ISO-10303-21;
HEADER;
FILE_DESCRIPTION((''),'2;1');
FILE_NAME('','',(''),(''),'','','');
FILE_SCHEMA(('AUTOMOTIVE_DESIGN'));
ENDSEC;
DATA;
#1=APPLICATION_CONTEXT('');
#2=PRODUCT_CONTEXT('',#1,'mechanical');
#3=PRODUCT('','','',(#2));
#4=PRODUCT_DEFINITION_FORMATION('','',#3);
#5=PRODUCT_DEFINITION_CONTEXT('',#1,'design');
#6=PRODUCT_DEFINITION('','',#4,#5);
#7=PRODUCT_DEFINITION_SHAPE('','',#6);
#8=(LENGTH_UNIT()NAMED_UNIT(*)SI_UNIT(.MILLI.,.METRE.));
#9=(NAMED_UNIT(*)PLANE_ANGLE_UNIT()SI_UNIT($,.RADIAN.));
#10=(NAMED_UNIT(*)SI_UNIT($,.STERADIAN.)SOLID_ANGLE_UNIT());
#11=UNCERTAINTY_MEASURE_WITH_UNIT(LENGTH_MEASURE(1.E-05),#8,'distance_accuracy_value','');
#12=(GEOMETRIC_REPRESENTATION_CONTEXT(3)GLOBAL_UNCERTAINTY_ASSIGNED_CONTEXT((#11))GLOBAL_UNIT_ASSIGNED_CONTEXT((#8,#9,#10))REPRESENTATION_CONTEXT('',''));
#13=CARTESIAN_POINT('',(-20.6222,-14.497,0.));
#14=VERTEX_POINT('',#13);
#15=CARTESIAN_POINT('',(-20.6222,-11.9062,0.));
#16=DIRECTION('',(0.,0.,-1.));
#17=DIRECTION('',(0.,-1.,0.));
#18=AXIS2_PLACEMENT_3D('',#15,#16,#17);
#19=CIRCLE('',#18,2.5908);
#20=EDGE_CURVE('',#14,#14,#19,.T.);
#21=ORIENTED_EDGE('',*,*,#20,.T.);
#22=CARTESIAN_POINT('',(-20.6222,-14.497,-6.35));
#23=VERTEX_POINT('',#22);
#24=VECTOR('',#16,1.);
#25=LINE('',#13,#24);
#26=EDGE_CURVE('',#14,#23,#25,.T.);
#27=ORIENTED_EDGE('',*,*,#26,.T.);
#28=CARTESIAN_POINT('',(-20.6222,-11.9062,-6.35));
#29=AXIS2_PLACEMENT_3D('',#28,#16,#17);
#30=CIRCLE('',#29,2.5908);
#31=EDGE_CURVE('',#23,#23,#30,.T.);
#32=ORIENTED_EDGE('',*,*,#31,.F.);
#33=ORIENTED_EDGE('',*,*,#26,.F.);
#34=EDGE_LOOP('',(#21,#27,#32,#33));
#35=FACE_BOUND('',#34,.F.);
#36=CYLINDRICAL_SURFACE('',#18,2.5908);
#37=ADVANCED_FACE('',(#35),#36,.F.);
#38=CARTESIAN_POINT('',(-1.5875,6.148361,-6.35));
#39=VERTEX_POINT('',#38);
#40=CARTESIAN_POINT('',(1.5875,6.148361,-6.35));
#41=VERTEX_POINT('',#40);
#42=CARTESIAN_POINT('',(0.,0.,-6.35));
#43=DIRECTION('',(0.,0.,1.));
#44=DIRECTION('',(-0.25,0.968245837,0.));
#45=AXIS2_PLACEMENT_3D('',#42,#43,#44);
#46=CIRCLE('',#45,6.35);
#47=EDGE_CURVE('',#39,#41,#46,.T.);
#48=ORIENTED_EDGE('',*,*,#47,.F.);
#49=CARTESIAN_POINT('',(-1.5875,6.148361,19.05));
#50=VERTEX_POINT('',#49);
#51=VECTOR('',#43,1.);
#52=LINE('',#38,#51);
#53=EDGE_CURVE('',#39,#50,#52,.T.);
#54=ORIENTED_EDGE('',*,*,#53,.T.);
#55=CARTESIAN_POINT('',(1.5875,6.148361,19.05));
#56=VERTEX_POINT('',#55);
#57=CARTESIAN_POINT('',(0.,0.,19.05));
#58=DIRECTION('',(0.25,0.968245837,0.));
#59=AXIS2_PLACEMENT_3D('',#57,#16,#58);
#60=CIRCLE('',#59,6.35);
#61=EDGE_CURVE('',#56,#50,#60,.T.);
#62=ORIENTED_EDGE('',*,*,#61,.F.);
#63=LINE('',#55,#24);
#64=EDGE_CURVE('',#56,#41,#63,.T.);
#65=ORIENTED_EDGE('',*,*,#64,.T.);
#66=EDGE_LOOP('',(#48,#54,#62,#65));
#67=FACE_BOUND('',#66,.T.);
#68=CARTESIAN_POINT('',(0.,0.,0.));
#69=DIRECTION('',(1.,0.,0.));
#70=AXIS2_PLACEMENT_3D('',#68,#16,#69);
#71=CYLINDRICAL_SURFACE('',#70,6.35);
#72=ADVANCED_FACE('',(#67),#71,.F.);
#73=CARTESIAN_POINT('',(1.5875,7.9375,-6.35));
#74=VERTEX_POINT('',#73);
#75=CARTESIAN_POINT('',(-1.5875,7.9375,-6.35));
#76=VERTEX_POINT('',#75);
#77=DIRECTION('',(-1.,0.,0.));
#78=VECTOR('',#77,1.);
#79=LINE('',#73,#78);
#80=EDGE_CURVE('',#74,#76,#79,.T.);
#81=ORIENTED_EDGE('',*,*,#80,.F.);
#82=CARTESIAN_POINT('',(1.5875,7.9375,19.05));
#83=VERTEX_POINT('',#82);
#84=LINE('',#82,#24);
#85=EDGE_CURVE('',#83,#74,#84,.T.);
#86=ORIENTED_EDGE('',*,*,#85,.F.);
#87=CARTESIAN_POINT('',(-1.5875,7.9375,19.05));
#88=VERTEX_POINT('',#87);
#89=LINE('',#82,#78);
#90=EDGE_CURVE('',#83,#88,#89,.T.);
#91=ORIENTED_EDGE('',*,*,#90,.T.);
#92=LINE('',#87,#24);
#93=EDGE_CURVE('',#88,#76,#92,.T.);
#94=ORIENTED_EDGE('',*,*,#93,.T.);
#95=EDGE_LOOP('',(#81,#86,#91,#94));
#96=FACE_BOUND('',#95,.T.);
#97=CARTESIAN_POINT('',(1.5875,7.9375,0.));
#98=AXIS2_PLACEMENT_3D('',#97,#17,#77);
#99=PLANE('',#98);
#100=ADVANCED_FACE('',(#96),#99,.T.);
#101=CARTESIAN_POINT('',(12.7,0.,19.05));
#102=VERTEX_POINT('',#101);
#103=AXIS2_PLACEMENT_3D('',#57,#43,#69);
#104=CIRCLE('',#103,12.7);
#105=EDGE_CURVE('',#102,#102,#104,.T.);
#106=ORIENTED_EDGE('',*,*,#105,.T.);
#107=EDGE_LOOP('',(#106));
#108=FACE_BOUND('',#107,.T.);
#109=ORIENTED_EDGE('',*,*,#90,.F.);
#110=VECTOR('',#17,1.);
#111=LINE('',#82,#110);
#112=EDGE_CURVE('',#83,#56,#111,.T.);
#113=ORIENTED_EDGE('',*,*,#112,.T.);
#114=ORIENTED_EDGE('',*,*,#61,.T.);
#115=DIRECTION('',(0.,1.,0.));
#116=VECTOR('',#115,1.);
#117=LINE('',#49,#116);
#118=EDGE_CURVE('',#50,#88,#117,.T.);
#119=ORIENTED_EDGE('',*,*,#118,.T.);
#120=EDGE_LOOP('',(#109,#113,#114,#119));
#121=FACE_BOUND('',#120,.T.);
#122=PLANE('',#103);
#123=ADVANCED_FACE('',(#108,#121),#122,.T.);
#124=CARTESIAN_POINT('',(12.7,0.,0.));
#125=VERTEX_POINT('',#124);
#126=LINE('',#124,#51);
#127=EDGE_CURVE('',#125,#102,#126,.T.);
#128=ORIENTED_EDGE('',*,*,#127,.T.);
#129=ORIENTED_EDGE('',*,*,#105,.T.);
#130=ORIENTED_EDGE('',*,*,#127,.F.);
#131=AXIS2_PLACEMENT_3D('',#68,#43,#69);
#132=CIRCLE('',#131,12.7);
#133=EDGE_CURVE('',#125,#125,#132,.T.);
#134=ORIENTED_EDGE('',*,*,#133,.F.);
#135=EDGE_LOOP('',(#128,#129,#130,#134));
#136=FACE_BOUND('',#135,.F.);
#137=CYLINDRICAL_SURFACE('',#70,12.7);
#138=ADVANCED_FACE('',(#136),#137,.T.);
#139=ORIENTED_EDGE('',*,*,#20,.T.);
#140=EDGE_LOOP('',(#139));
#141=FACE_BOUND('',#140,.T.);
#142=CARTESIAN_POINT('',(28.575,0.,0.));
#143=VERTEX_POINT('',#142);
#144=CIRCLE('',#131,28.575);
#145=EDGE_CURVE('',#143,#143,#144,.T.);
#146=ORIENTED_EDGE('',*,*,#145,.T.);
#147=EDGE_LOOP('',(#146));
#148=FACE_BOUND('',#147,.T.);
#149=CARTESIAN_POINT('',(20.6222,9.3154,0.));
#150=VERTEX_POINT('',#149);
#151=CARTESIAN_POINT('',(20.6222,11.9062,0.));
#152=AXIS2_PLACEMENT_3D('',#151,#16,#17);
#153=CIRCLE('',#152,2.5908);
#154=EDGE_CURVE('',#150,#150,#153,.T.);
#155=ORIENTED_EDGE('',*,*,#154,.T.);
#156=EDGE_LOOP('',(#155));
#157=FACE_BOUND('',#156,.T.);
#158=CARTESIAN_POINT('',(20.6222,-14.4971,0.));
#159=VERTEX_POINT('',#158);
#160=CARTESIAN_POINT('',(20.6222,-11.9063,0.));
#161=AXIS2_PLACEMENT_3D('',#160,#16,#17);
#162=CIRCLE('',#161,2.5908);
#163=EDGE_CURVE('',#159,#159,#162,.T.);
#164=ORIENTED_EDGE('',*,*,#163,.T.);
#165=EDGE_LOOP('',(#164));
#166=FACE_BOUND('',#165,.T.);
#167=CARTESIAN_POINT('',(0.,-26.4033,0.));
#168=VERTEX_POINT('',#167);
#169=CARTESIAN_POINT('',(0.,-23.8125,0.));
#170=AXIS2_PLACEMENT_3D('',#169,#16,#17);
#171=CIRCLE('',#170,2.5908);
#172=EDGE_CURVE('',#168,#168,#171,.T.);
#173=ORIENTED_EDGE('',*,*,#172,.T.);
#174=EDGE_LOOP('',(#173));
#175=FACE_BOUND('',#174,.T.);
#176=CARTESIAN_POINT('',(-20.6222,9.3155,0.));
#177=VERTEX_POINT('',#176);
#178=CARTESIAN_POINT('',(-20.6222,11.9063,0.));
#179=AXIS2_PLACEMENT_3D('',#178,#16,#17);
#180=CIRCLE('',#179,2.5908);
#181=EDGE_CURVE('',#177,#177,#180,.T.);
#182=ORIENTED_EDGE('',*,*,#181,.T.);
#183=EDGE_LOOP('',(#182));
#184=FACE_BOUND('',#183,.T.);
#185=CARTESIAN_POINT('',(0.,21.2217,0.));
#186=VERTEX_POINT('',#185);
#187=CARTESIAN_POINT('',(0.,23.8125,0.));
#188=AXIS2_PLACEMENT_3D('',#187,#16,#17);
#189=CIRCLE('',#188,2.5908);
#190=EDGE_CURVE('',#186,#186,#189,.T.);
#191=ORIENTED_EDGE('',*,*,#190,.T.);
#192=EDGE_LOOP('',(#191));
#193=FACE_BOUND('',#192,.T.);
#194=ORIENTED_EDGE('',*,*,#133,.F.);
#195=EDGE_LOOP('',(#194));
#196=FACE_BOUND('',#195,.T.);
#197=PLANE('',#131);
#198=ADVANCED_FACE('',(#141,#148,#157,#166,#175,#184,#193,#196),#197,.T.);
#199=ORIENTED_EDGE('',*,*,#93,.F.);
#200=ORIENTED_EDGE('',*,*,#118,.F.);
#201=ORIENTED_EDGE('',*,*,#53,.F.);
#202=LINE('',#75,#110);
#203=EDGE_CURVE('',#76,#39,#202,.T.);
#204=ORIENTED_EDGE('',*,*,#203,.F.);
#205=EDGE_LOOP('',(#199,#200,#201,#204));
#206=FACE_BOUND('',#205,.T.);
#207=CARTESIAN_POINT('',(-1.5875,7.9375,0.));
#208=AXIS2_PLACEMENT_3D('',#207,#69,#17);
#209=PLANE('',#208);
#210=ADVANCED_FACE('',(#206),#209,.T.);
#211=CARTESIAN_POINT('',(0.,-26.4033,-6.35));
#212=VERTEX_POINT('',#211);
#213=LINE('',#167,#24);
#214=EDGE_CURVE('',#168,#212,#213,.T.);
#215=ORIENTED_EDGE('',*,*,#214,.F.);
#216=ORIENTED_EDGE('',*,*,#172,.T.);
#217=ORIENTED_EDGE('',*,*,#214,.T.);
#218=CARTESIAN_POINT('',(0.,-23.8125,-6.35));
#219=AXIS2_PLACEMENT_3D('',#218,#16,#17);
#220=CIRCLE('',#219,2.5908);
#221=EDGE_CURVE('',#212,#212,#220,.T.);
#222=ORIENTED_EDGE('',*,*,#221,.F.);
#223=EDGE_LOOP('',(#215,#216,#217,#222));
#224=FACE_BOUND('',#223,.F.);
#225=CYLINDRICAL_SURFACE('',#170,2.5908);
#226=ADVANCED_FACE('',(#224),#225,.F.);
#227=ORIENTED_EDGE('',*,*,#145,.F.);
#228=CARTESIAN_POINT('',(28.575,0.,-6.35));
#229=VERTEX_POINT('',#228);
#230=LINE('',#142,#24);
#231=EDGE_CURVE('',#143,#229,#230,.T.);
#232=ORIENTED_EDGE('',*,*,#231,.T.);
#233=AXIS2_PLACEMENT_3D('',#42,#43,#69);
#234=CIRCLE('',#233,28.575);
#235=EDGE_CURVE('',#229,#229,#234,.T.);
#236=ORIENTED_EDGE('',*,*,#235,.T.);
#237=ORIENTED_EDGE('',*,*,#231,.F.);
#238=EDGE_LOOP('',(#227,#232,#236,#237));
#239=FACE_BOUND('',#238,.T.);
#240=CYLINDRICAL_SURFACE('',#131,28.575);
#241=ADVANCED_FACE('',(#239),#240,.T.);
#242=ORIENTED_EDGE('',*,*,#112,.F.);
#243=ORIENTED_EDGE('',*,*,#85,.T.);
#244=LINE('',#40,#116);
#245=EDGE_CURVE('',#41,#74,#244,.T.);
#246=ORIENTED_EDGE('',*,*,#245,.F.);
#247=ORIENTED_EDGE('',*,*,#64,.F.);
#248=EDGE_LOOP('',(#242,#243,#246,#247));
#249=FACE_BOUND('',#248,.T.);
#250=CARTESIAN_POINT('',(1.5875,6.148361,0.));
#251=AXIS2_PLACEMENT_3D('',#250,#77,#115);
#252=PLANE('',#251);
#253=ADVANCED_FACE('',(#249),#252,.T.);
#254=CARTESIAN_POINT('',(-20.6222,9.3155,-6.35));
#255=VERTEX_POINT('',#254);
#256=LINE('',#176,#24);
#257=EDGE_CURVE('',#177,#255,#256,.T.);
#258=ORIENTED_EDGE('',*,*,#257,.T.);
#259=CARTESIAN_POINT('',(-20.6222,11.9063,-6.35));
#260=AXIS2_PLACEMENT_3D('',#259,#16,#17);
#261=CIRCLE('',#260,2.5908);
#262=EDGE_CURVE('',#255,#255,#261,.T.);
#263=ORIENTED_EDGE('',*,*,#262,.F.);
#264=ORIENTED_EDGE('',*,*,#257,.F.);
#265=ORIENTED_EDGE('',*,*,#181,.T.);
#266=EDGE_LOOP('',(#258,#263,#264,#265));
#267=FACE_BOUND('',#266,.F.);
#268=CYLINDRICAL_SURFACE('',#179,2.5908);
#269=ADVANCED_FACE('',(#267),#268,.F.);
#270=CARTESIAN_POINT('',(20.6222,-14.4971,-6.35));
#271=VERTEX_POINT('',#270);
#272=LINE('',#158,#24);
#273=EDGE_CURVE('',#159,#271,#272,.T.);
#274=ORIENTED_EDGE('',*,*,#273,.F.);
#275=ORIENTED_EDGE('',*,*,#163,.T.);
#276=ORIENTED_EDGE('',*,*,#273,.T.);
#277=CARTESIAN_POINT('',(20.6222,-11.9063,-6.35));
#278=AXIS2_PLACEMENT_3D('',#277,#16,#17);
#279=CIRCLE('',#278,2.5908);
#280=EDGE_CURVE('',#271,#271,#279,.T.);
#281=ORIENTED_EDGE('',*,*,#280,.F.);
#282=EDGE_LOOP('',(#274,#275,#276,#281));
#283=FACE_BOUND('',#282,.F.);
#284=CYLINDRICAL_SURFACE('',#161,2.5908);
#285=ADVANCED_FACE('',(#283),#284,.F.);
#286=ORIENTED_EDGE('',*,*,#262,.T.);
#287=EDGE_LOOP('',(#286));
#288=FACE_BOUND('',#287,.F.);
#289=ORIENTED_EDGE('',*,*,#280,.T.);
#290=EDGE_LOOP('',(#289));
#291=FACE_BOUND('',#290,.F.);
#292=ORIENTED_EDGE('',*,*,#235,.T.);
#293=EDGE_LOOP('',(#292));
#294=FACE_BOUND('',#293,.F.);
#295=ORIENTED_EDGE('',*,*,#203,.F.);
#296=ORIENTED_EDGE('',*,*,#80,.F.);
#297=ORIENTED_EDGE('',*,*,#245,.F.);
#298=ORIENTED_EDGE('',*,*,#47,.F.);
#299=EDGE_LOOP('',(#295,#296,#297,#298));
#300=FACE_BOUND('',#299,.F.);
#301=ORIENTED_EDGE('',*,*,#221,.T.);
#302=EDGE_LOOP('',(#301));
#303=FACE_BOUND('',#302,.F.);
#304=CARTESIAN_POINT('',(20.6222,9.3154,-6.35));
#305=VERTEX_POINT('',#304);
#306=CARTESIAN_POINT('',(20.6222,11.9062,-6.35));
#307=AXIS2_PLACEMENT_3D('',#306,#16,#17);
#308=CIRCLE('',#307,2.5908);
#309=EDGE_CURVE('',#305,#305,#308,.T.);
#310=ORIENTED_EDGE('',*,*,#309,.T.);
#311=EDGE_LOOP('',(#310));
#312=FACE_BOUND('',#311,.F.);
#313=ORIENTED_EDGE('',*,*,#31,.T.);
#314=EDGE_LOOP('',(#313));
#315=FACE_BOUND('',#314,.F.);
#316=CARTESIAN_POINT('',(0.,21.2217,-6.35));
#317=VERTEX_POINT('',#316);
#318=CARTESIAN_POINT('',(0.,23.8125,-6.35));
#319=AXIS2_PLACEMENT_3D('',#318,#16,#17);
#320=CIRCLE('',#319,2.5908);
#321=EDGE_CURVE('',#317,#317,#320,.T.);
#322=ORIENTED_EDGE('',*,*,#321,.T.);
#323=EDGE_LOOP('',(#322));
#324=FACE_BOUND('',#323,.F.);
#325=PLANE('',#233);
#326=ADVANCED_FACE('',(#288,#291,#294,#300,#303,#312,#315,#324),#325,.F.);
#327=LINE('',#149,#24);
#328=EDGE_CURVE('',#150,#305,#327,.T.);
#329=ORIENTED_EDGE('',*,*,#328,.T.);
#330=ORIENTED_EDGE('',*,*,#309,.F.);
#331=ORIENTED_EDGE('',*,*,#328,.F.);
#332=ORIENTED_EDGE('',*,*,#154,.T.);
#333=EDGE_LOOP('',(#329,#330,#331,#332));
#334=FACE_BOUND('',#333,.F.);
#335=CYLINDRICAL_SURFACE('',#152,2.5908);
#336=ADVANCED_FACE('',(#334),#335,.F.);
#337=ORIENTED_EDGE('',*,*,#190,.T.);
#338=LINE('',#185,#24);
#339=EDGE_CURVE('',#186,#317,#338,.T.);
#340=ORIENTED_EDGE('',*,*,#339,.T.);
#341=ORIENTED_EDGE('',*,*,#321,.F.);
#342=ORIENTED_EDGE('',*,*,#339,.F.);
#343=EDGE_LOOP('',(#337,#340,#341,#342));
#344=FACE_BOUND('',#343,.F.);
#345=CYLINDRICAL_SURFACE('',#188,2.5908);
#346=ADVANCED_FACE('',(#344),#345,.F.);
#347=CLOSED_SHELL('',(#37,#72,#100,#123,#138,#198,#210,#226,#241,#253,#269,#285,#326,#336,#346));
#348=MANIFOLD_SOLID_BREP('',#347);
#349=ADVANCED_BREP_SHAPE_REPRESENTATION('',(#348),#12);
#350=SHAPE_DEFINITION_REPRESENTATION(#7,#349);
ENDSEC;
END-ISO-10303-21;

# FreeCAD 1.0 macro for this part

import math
import FreeCAD as App
import Part
import Sketcher

V = App.Vector
Q = App.Units.Quantity

doc = App.newDocument("Part")
params = doc.addObject("Spreadsheet::Sheet", "Params")
for row, (alias, value) in enumerate([
    ("sketch1_diameter", "2.25 in"),
    ("sketch1_radius", "0.25 in"),
    ("sketch1_width", "0.125 in"),
    ("pad1_length", "0.25 in"),
    ("sketch2_diameter", "1 in"),
    ("sketch2_radius", "0.25 in"),
    ("sketch2_width", "0.125 in"),
    ("pad2_length", "0.75 in"),
    ("sketch3_diameter", "0.204 in"),
    ("hole_diameter", "0.204 in"),
    ("hole_depth", "1 in"),
], start=1):
    params.set(f"A{row}", alias)
    params.set(f"B{row}", "=" + value)
    params.setAlias(f"B{row}", alias)

body = doc.addObject("PartDesign::Body", "Body")

sketch1 = body.newObject("Sketcher::SketchObject", "Sketch")
sketch1.AttachmentSupport = (doc.getObject("XY_Plane"), [""])
sketch1.MapMode = "FlatFace"
sketch1.addGeometry([
    Part.Circle(V(0, 0, 0), V(0, 0, 1), 28.6),
    Part.LineSegment(V(-1.6, 6.1, 0), V(-1.6, 7.9, 0)),
    Part.LineSegment(V(-1.6, 7.9, 0), V(1.6, 7.9, 0)),
    Part.LineSegment(V(1.6, 7.9, 0), V(1.6, 6.1, 0)),
    Part.ArcOfCircle(Part.Circle(V(0, 0, 0), V(0, 0, 1), 6.3), math.radians(104), math.radians(436)),
], False)
sketch1.addConstraint([
    Sketcher.Constraint("Coincident", 1, 2, 2, 1),
    Sketcher.Constraint("Coincident", 2, 2, 3, 1),
    Sketcher.Constraint("Coincident", 3, 2, 4, 2),
    Sketcher.Constraint("Coincident", 4, 1, 1, 1),
    Sketcher.Constraint("Vertical", 1),
    Sketcher.Constraint("Horizontal", 2),
    Sketcher.Constraint("Vertical", 3),
    Sketcher.Constraint("Coincident", 0, 3, -1, 1),
    Sketcher.Constraint("Coincident", 4, 3, -1, 1),
    Sketcher.Constraint("Horizontal", 3, 2, 4, 1),
    Sketcher.Constraint("Diameter", 0, Q("2.25 in")),
    Sketcher.Constraint("Radius", 4, Q("0.25 in")),
    Sketcher.Constraint("DistanceX", 2, 1, 2, 2, Q("0.125 in")),
    Sketcher.Constraint("DistanceY", -1, 1, 1, 2, Q("0.3125 in")),
])
sketch1.setExpression("Constraints[10]", "Params.sketch1_diameter")
sketch1.setExpression("Constraints[11]", "Params.sketch1_radius")
sketch1.setExpression("Constraints[12]", "Params.sketch1_width")
pad1 = body.newObject("PartDesign::Pad", "Pad")
pad1.Profile = sketch1
pad1.setExpression("Length", "Params.pad1_length")
pad1.Reversed = True

sketch2 = body.newObject("Sketcher::SketchObject", "Sketch001")
sketch2.AttachmentSupport = (doc.getObject("XY_Plane"), [""])
sketch2.MapMode = "FlatFace"
sketch2.addGeometry([
    Part.Circle(V(0, 0, 0), V(0, 0, 1), 12.7),
    Part.ArcOfCircle(Part.Circle(V(0, 0, 0), V(0, 0, 1), 6.3), math.radians(104), math.radians(436)),
    Part.LineSegment(V(-1.6, 6.1, 0), V(-1.6, 7.9, 0)),
    Part.LineSegment(V(-1.6, 7.9, 0), V(1.6, 7.9, 0)),
    Part.LineSegment(V(1.6, 7.9, 0), V(1.6, 6.1, 0)),
], False)
sketch2.addConstraint([
    Sketcher.Constraint("Coincident", 1, 1, 2, 1),
    Sketcher.Constraint("Coincident", 2, 2, 3, 1),
    Sketcher.Constraint("Coincident", 3, 2, 4, 1),
    Sketcher.Constraint("Coincident", 4, 2, 1, 2),
    Sketcher.Constraint("Vertical", 2),
    Sketcher.Constraint("Horizontal", 3),
    Sketcher.Constraint("Vertical", 4),
    Sketcher.Constraint("Coincident", 0, 3, -1, 1),
    Sketcher.Constraint("Coincident", 1, 3, -1, 1),
    Sketcher.Constraint("Horizontal", 1, 1, 4, 2),
    Sketcher.Constraint("Diameter", 0, Q("1 in")),
    Sketcher.Constraint("Radius", 1, Q("0.25 in")),
    Sketcher.Constraint("DistanceX", 3, 1, 3, 2, Q("0.125 in")),
    Sketcher.Constraint("DistanceY", -1, 1, 2, 2, Q("0.3125 in")),
])
sketch2.setExpression("Constraints[10]", "Params.sketch2_diameter")
sketch2.setExpression("Constraints[11]", "Params.sketch2_radius")
sketch2.setExpression("Constraints[12]", "Params.sketch2_width")
pad2 = body.newObject("PartDesign::Pad", "Pad001")
pad2.Profile = sketch2
pad2.setExpression("Length", "Params.pad2_length")

sketch3 = body.newObject("Sketcher::SketchObject", "Sketch002")
sketch3.AttachmentSupport = (doc.getObject("XY_Plane"), [""])
sketch3.MapMode = "FlatFace"
sketch3.addGeometry([
    Part.Circle(V(0, 23.8, 0), V(0, 0, 1), 2.6),
    Part.Circle(V(-20.6, 11.9, 0), V(0, 0, 1), 2.6),
    Part.Circle(V(-20.6, -11.9, 0), V(0, 0, 1), 2.6),
    Part.Circle(V(0, -23.8, 0), V(0, 0, 1), 2.6),
    Part.Circle(V(20.6, -11.9, 0), V(0, 0, 1), 2.6),
    Part.Circle(V(20.6, 11.9, 0), V(0, 0, 1), 2.6),
], False)
sketch3.addConstraint([
    Sketcher.Constraint("Equal", 0, 1),
    Sketcher.Constraint("Equal", 1, 2),
    Sketcher.Constraint("Equal", 2, 3),
    Sketcher.Constraint("Equal", 3, 4),
    Sketcher.Constraint("Equal", 4, 5),
    Sketcher.Constraint("Symmetric", 0, 3, 3, 3, -1, 1),
    Sketcher.Constraint("Symmetric", 1, 3, 4, 3, -1, 1),
    Sketcher.Constraint("Symmetric", 2, 3, 5, 3, -1, 1),
    Sketcher.Constraint("Symmetric", 2, 3, 4, 3, -2),
    Sketcher.Constraint("PointOnObject", 0, 3, -2),
    Sketcher.Constraint("Diameter", 0, Q("0.204 in")),
    Sketcher.Constraint("DistanceY", -1, 1, 0, 3, Q("0.9375 in")),
    Sketcher.Constraint("DistanceY", -1, 1, 1, 3, Q("0.468752 in")),
    Sketcher.Constraint("DistanceX", 1, 3, -1, 1, Q("0.8119 in")),
])
sketch3.setExpression("Constraints[10]", "Params.sketch3_diameter")
doc.recompute()
hole = body.newObject("PartDesign::Hole", "Hole")
hole.Profile = sketch3
hole.ThreadType = "None"
hole.setExpression("Diameter", "Params.hole_diameter")
hole.DepthType = "Dimension"
hole.setExpression("Depth", "Params.hole_depth")
hole.DrillPoint = "Angled"
hole.DrillPointAngle = 118

doc.recompute()
